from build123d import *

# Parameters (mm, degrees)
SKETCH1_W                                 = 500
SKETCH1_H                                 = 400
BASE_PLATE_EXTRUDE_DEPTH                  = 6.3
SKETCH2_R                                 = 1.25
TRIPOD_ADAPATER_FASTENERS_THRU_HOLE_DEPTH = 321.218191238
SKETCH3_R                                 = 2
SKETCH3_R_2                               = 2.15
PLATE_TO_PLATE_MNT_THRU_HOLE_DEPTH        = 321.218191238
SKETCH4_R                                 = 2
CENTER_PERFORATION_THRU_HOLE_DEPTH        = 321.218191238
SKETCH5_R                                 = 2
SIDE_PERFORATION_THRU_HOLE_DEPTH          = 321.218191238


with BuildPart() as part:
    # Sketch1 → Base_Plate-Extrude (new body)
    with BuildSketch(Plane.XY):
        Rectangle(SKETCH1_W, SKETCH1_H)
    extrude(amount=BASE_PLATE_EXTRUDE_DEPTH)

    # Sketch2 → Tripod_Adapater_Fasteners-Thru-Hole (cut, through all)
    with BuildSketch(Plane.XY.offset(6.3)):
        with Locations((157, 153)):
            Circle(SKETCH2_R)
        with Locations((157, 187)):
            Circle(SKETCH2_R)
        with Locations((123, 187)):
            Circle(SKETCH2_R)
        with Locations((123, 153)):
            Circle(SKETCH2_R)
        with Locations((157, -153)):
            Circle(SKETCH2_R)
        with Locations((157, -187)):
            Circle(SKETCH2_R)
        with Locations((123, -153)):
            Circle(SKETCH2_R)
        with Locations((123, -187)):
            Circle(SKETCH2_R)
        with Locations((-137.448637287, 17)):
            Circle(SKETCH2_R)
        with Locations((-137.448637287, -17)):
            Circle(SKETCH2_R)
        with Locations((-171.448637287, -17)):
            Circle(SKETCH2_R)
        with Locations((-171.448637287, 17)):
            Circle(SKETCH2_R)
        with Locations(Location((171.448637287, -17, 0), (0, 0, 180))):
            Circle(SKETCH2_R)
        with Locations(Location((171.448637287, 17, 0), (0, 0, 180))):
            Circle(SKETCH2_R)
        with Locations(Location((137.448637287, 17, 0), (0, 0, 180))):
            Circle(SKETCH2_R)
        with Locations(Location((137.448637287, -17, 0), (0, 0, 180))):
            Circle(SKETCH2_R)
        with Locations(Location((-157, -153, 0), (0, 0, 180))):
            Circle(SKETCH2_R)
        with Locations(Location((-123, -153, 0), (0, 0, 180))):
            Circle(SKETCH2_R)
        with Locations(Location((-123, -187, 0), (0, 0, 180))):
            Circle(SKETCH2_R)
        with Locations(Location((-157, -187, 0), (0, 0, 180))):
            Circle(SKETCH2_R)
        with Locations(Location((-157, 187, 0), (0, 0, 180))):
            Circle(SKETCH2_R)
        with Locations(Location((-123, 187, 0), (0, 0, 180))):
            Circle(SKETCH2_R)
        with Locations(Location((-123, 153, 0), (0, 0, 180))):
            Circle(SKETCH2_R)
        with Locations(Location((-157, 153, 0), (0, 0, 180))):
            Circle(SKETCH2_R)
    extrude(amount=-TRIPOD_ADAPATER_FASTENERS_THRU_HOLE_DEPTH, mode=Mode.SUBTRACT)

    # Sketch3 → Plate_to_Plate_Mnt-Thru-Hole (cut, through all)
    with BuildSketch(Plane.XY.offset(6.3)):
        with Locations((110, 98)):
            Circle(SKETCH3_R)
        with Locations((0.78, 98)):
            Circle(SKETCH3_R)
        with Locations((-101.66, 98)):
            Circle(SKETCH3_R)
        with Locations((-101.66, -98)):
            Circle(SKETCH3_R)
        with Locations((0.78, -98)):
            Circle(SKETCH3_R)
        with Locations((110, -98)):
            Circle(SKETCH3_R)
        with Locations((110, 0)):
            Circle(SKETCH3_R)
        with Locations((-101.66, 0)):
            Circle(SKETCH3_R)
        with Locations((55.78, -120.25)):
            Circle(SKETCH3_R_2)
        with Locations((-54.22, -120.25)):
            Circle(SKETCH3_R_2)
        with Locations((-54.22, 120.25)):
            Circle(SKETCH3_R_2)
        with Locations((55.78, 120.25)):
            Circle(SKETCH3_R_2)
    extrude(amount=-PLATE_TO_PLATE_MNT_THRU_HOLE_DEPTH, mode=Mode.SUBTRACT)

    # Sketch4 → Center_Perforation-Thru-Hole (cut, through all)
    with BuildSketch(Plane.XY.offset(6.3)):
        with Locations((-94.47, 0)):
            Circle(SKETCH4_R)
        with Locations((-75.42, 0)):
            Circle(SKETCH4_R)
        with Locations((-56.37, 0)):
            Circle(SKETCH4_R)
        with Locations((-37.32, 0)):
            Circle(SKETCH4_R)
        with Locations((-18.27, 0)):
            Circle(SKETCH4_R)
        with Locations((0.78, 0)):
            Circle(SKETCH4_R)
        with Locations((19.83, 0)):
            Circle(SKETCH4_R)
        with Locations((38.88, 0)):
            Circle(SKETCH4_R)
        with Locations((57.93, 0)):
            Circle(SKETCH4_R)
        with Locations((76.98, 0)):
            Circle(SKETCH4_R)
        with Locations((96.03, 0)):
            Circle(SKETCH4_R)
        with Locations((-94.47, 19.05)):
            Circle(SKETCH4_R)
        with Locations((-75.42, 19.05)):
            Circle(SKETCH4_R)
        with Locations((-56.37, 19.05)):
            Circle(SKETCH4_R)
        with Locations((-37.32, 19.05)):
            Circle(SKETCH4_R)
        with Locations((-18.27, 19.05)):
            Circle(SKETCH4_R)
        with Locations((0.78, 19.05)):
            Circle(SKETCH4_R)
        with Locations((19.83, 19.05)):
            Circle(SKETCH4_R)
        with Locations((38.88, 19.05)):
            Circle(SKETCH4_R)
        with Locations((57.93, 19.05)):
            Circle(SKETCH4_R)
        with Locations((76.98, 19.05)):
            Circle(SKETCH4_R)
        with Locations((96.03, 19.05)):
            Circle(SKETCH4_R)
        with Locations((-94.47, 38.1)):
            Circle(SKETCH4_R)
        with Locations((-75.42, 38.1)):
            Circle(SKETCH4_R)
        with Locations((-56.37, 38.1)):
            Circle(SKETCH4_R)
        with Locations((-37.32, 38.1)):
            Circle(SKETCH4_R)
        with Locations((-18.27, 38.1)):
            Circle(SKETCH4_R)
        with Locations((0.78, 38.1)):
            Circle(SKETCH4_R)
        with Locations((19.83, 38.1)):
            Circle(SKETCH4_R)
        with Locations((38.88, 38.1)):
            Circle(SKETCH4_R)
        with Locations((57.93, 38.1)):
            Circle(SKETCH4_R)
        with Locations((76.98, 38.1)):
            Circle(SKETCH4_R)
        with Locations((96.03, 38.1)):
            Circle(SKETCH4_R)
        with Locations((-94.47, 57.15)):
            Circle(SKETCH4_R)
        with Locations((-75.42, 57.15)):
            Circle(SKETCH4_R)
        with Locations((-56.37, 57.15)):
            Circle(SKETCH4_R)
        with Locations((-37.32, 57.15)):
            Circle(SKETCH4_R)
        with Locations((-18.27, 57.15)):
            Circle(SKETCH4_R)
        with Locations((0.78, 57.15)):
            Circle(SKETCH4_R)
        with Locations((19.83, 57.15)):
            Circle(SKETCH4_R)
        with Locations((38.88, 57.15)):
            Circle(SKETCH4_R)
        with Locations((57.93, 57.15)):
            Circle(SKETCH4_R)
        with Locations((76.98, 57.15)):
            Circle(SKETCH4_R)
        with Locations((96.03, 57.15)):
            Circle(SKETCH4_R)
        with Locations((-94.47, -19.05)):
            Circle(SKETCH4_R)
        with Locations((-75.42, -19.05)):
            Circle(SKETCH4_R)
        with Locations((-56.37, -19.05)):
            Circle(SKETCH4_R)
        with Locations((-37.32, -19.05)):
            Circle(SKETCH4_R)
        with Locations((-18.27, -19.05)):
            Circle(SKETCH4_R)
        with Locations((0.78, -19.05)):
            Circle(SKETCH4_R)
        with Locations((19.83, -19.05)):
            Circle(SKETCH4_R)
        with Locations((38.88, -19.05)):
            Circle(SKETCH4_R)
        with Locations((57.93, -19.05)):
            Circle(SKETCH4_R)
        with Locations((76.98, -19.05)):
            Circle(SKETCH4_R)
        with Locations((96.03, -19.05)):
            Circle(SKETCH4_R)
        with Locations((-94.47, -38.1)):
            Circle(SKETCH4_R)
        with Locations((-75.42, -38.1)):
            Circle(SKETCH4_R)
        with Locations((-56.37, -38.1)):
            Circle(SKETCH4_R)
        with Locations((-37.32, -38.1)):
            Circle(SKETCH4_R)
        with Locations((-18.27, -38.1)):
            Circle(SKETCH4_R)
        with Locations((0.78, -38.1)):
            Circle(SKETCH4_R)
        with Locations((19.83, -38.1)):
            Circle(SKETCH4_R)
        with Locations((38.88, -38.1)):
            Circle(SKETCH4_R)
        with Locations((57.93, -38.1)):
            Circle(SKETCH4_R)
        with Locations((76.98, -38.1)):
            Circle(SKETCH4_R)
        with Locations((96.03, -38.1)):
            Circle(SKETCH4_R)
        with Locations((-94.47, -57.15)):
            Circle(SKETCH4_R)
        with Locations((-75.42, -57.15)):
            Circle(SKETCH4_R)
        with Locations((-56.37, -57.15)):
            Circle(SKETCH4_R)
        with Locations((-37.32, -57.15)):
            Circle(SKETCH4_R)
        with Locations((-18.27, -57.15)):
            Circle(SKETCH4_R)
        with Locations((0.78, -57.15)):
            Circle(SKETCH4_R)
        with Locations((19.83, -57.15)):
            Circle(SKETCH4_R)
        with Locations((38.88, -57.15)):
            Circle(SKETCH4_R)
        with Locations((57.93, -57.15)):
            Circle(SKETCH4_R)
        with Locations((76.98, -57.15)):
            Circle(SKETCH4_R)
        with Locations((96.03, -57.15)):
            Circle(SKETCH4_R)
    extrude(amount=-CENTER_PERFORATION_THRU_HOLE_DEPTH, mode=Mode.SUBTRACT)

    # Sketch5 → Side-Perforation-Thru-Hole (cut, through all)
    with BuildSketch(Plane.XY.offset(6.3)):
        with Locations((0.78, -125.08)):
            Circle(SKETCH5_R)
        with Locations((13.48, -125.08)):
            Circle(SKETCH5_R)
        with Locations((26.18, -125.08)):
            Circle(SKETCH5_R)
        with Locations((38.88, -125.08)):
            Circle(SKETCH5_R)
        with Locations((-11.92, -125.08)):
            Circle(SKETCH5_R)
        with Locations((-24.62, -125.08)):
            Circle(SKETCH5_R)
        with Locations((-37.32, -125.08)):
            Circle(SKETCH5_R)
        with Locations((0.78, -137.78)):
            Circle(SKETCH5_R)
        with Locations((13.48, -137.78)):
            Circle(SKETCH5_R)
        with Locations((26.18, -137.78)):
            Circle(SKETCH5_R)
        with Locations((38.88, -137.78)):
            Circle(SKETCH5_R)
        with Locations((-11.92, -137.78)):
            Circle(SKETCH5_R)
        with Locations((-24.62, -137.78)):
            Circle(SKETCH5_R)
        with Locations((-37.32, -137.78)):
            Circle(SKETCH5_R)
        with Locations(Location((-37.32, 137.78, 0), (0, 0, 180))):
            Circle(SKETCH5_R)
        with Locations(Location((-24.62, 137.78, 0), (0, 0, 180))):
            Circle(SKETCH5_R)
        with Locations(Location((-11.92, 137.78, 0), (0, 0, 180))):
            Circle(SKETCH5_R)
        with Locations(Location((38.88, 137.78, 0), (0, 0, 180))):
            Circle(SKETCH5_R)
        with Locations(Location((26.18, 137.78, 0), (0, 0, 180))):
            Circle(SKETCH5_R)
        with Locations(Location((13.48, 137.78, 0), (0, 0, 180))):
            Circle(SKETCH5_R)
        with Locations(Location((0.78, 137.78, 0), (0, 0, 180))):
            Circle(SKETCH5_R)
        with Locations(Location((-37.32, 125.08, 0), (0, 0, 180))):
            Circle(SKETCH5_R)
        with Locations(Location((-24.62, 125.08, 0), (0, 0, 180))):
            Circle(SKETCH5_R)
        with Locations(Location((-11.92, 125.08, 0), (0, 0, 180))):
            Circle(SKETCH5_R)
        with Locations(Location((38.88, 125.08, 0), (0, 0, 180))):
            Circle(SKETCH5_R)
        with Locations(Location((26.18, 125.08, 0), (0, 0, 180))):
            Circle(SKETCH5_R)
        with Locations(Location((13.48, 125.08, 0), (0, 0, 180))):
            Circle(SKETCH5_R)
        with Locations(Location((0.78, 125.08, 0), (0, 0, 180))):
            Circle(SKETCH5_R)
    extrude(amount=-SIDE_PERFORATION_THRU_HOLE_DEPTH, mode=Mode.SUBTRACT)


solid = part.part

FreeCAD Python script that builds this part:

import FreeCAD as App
import Part
import Sketcher

V = App.Vector
Q = App.Units.Quantity


def add_polygon(sketch, points):
    """Adds a closed chain of lines whose ends are joined by coincident constraints."""
    first, n = sketch.GeometryCount, len(points)
    for a, b in zip(points, points[1:] + points[:1]):
        sketch.addGeometry(Part.LineSegment(App.Vector(*a, 0), App.Vector(*b, 0)), False)
    for i in range(n):
        sketch.addConstraint(Sketcher.Constraint("Coincident", first + i, 2, first + (i + 1) % n, 1))

doc = App.newDocument("Part")
params = doc.addObject("Spreadsheet::Sheet", "Params")
for row, (alias, value) in enumerate([
    ("sketch1_width", "500 mm"),
    ("sketch1_height", "400 mm"),
    ("pad1_length", "6.3 mm"),
    ("sketch2_diameter", "2.5 mm"),
    ("sketch3_diameter", "4 mm"),
    ("sketch3_diameter2", "4.3 mm"),
    ("sketch4_diameter", "4 mm"),
    ("sketch5_diameter", "4 mm"),
], start=1):
    params.set(f"A{row}", alias)
    params.set(f"B{row}", "=" + value)
    params.setAlias(f"B{row}", alias)

body = doc.addObject("PartDesign::Body", "Body")

# Sketch on XY plane
sketch1 = body.newObject("Sketcher::SketchObject", "Sketch")
sketch1.AttachmentSupport = (doc.getObject("XY_Plane"), [""])
sketch1.MapMode = "FlatFace"
add_polygon(sketch1, [(-250, 200), (-250, -200), (250, -200), (250, 200)])  # lines 0-3
sketch1.addConstraint([
    Sketcher.Constraint("Vertical", 0),
    Sketcher.Constraint("Horizontal", 1),
    Sketcher.Constraint("Vertical", 2),
    Sketcher.Constraint("Horizontal", 3),
    Sketcher.Constraint("Symmetric", 0, 2, 2, 2, -1, 1),
    Sketcher.Constraint("DistanceX", 1, 1, 1, 2, Q("500 mm")),
    Sketcher.Constraint("DistanceY", 0, 2, 0, 1, Q("400 mm")),
])
sketch1.setExpression("Constraints[9]", "Params.sketch1_width")
sketch1.setExpression("Constraints[10]", "Params.sketch1_height")
pad1 = body.newObject("PartDesign::Pad", "Pad")
pad1.Profile = sketch1
pad1.setExpression("Length", "Params.pad1_length")

# Sketch on XY plane
sketch2 = body.newObject("Sketcher::SketchObject", "Sketch001")
sketch2.AttachmentSupport = (doc.getObject("XY_Plane"), [""])
sketch2.MapMode = "FlatFace"
sketch2.AttachmentOffset = App.Placement(V(0, 0, 6.3), App.Rotation())
sketch2.addGeometry([
    Part.Circle(V(157, 153, 0), V(0, 0, 1), 1.25),  # 0
    Part.Circle(V(157, 187, 0), V(0, 0, 1), 1.25),  # 1
    Part.Circle(V(123, 187, 0), V(0, 0, 1), 1.25),  # 2
    Part.Circle(V(123, 153, 0), V(0, 0, 1), 1.25),  # 3
    Part.Circle(V(157, -153, 0), V(0, 0, 1), 1.25),  # 4
    Part.Circle(V(157, -187, 0), V(0, 0, 1), 1.25),  # 5
    Part.Circle(V(123, -153, 0), V(0, 0, 1), 1.25),  # 6
    Part.Circle(V(123, -187, 0), V(0, 0, 1), 1.25),  # 7
    Part.Circle(V(-137.448637, 17, 0), V(0, 0, 1), 1.25),  # 8
    Part.Circle(V(-137.448637, -17, 0), V(0, 0, 1), 1.25),  # 9
    Part.Circle(V(-171.448637, -17, 0), V(0, 0, 1), 1.25),  # 10
    Part.Circle(V(-171.448637, 17, 0), V(0, 0, 1), 1.25),  # 11
    Part.Circle(V(171.448637, -17, 0), V(0, 0, 1), 1.25),  # 12
    Part.Circle(V(171.448637, 17, 0), V(0, 0, 1), 1.25),  # 13
    Part.Circle(V(137.448637, 17, 0), V(0, 0, 1), 1.25),  # 14
    Part.Circle(V(137.448637, -17, 0), V(0, 0, 1), 1.25),  # 15
    Part.Circle(V(-157, -153, 0), V(0, 0, 1), 1.25),  # 16
    Part.Circle(V(-123, -153, 0), V(0, 0, 1), 1.25),  # 17
    Part.Circle(V(-123, -187, 0), V(0, 0, 1), 1.25),  # 18
    Part.Circle(V(-157, -187, 0), V(0, 0, 1), 1.25),  # 19
    Part.Circle(V(-157, 187, 0), V(0, 0, 1), 1.25),  # 20
    Part.Circle(V(-123, 187, 0), V(0, 0, 1), 1.25),  # 21
    Part.Circle(V(-123, 153, 0), V(0, 0, 1), 1.25),  # 22
    Part.Circle(V(-157, 153, 0), V(0, 0, 1), 1.25),  # 23
], False)
sketch2.addConstraint([
    Sketcher.Constraint("Equal", 0, 1),
    Sketcher.Constraint("Equal", 1, 2),
    Sketcher.Constraint("Equal", 2, 3),
    Sketcher.Constraint("Equal", 3, 4),
    Sketcher.Constraint("Equal", 4, 5),
    Sketcher.Constraint("Equal", 5, 6),
    Sketcher.Constraint("Equal", 6, 7),
    Sketcher.Constraint("Equal", 7, 8),
    Sketcher.Constraint("Equal", 8, 9),
    Sketcher.Constraint("Equal", 9, 10),
    Sketcher.Constraint("Equal", 10, 11),
    Sketcher.Constraint("Equal", 11, 12),
    Sketcher.Constraint("Equal", 12, 13),
    Sketcher.Constraint("Equal", 13, 14),
    Sketcher.Constraint("Equal", 14, 15),
    Sketcher.Constraint("Equal", 15, 16),
    Sketcher.Constraint("Equal", 16, 17),
    Sketcher.Constraint("Equal", 17, 18),
    Sketcher.Constraint("Equal", 18, 19),
    Sketcher.Constraint("Equal", 19, 20),
    Sketcher.Constraint("Equal", 20, 21),
    Sketcher.Constraint("Equal", 21, 22),
    Sketcher.Constraint("Equal", 22, 23),
    Sketcher.Constraint("Symmetric", 11, 3, 12, 3, -1, 1),
    Sketcher.Constraint("Symmetric", 10, 3, 13, 3, -1, 1),
    Sketcher.Constraint("Symmetric", 9, 3, 14, 3, -1, 1),
    Sketcher.Constraint("Symmetric", 8, 3, 15, 3, -1, 1),
    Sketcher.Constraint("Symmetric", 0, 3, 16, 3, -1, 1),
    Sketcher.Constraint("Symmetric", 3, 3, 17, 3, -1, 1),
    Sketcher.Constraint("Symmetric", 2, 3, 18, 3, -1, 1),
    Sketcher.Constraint("Symmetric", 1, 3, 19, 3, -1, 1),
    Sketcher.Constraint("Symmetric", 5, 3, 20, 3, -1, 1),
    Sketcher.Constraint("Symmetric", 7, 3, 21, 3, -1, 1),
    Sketcher.Constraint("Symmetric", 6, 3, 22, 3, -1, 1),
    Sketcher.Constraint("Symmetric", 4, 3, 23, 3, -1, 1),
    Sketcher.Constraint("Symmetric", 10, 3, 12, 3, -2),
    Sketcher.Constraint("Symmetric", 8, 3, 14, 3, -2),
    Sketcher.Constraint("Symmetric", 4, 3, 16, 3, -2),
    Sketcher.Constraint("Symmetric", 6, 3, 17, 3, -2),
    Sketcher.Constraint("Symmetric", 7, 3, 18, 3, -2),
    Sketcher.Constraint("Symmetric", 5, 3, 19, 3, -2),
    Sketcher.Constraint("Horizontal", 1, 3, 2, 3),
    Sketcher.Constraint("Horizontal", 0, 3, 3, 3),
    Sketcher.Constraint("Horizontal", 9, 3, 10, 3),
    Sketcher.Constraint("Vertical", 0, 3, 1, 3),
    Sketcher.Constraint("Vertical", 2, 3, 3, 3),
    Sketcher.Constraint("Diameter", 0, Q("2.5 mm")),
    Sketcher.Constraint("DistanceX", -1, 1, 0, 3, Q("157 mm")),
    Sketcher.Constraint("DistanceY", -1, 1, 0, 3, Q("153 mm")),
    Sketcher.Constraint("DistanceY", -1, 1, 1, 3, Q("187 mm")),
    Sketcher.Constraint("DistanceX", -1, 1, 2, 3, Q("123 mm")),
    Sketcher.Constraint("DistanceY", -1, 1, 8, 3, Q("17 mm")),
    Sketcher.Constraint("DistanceX", 10, 3, 9, 3, Q("34 mm")),
    Sketcher.Constraint("DistanceX", 8, 3, -1, 1, Q("137.448637 mm")),
])
sketch2.setExpression("Constraints[46]", "Params.sketch2_diameter")
pocket1 = body.newObject("PartDesign::Pocket", "Pocket")
pocket1.Profile = sketch2
pocket1.Type = "ThroughAll"

# Sketch on XY plane
sketch3 = body.newObject("Sketcher::SketchObject", "Sketch002")
sketch3.AttachmentSupport = (doc.getObject("XY_Plane"), [""])
sketch3.MapMode = "FlatFace"
sketch3.AttachmentOffset = App.Placement(V(0, 0, 6.3), App.Rotation())
sketch3.addGeometry([
    Part.Circle(V(110, 98, 0), V(0, 0, 1), 2),  # 0
    Part.Circle(V(0.78, 98, 0), V(0, 0, 1), 2),  # 1
    Part.Circle(V(-101.66, 98, 0), V(0, 0, 1), 2),  # 2
    Part.Circle(V(-101.66, -98, 0), V(0, 0, 1), 2),  # 3
    Part.Circle(V(0.78, -98, 0), V(0, 0, 1), 2),  # 4
    Part.Circle(V(110, -98, 0), V(0, 0, 1), 2),  # 5
    Part.Circle(V(110, 0, 0), V(0, 0, 1), 2),  # 6
    Part.Circle(V(-101.66, 0, 0), V(0, 0, 1), 2),  # 7
    Part.Circle(V(55.78, -120.25, 0), V(0, 0, 1), 2.15),  # 8
    Part.Circle(V(-54.22, -120.25, 0), V(0, 0, 1), 2.15),  # 9
    Part.Circle(V(-54.22, 120.25, 0), V(0, 0, 1), 2.15),  # 10
    Part.Circle(V(55.78, 120.25, 0), V(0, 0, 1), 2.15),  # 11
], False)
sketch3.addConstraint([
    Sketcher.Constraint("Equal", 0, 1),
    Sketcher.Constraint("Equal", 1, 2),
    Sketcher.Constraint("Equal", 2, 3),
    Sketcher.Constraint("Equal", 3, 4),
    Sketcher.Constraint("Equal", 4, 5),
    Sketcher.Constraint("Equal", 5, 6),
    Sketcher.Constraint("Equal", 6, 7),
    Sketcher.Constraint("Equal", 8, 9),
    Sketcher.Constraint("Equal", 9, 10),
    Sketcher.Constraint("Equal", 10, 11),
    Sketcher.Constraint("Symmetric", 2, 3, 3, 3, -1),
    Sketcher.Constraint("Symmetric", 1, 3, 4, 3, -1),
    Sketcher.Constraint("Symmetric", 0, 3, 5, 3, -1),
    Sketcher.Constraint("Symmetric", 9, 3, 10, 3, -1),
    Sketcher.Constraint("Symmetric", 8, 3, 11, 3, -1),
    Sketcher.Constraint("PointOnObject", 6, 3, -1),
    Sketcher.Constraint("PointOnObject", 7, 3, -1),
    Sketcher.Constraint("Horizontal", 0, 3, 1, 3),
    Sketcher.Constraint("Horizontal", 1, 3, 2, 3),
    Sketcher.Constraint("Horizontal", 8, 3, 9, 3),
    Sketcher.Constraint("Vertical", 5, 3, 6, 3),
    Sketcher.Constraint("Vertical", 3, 3, 7, 3),
    Sketcher.Constraint("Diameter", 0, Q("4 mm")),
    Sketcher.Constraint("Diameter", 8, Q("4.3 mm")),
    Sketcher.Constraint("DistanceX", -1, 1, 0, 3, Q("110 mm")),
    Sketcher.Constraint("DistanceY", -1, 1, 0, 3, Q("98 mm")),
    Sketcher.Constraint("DistanceX", 4, 3, 8, 3, Q("55 mm")),
    Sketcher.Constraint("DistanceX", 9, 3, 4, 3, Q("55 mm")),
    Sketcher.Constraint("DistanceX", -1, 1, 1, 3, Q("0.78 mm")),
    Sketcher.Constraint("DistanceX", 2, 3, -1, 1, Q("101.66 mm")),
    Sketcher.Constraint("DistanceY", 8, 3, -1, 1, Q("120.25 mm")),
])
sketch3.setExpression("Constraints[22]", "Params.sketch3_diameter")
sketch3.setExpression("Constraints[23]", "Params.sketch3_diameter2")
pocket2 = body.newObject("PartDesign::Pocket", "Pocket001")
pocket2.Profile = sketch3
pocket2.Type = "ThroughAll"

# Sketch on XY plane
sketch4 = body.newObject("Sketcher::SketchObject", "Sketch003")
sketch4.AttachmentSupport = (doc.getObject("XY_Plane"), [""])
sketch4.MapMode = "FlatFace"
sketch4.AttachmentOffset = App.Placement(V(0, 0, 6.3), App.Rotation())
sketch4.addGeometry([
    Part.Circle(V(-94.47, 0, 0), V(0, 0, 1), 2),  # 0
    Part.Circle(V(-75.42, 0, 0), V(0, 0, 1), 2),  # 1
    Part.Circle(V(-56.37, 0, 0), V(0, 0, 1), 2),  # 2
    Part.Circle(V(-37.32, 0, 0), V(0, 0, 1), 2),  # 3
    Part.Circle(V(-18.27, 0, 0), V(0, 0, 1), 2),  # 4
    Part.Circle(V(0.78, 0, 0), V(0, 0, 1), 2),  # 5
    Part.Circle(V(19.83, 0, 0), V(0, 0, 1), 2),  # 6
    Part.Circle(V(38.88, 0, 0), V(0, 0, 1), 2),  # 7
    Part.Circle(V(57.93, 0, 0), V(0, 0, 1), 2),  # 8
    Part.Circle(V(76.98, 0, 0), V(0, 0, 1), 2),  # 9
    Part.Circle(V(96.03, 0, 0), V(0, 0, 1), 2),  # 10
    Part.Circle(V(-94.47, 19.05, 0), V(0, 0, 1), 2),  # 11
    Part.Circle(V(-75.42, 19.05, 0), V(0, 0, 1), 2),  # 12
    Part.Circle(V(-56.37, 19.05, 0), V(0, 0, 1), 2),  # 13
    Part.Circle(V(-37.32, 19.05, 0), V(0, 0, 1), 2),  # 14
    Part.Circle(V(-18.27, 19.05, 0), V(0, 0, 1), 2),  # 15
    Part.Circle(V(0.78, 19.05, 0), V(0, 0, 1), 2),  # 16
    Part.Circle(V(19.83, 19.05, 0), V(0, 0, 1), 2),  # 17
    Part.Circle(V(38.88, 19.05, 0), V(0, 0, 1), 2),  # 18
    Part.Circle(V(57.93, 19.05, 0), V(0, 0, 1), 2),  # 19
    Part.Circle(V(76.98, 19.05, 0), V(0, 0, 1), 2),  # 20
    Part.Circle(V(96.03, 19.05, 0), V(0, 0, 1), 2),  # 21
    Part.Circle(V(-94.47, 38.1, 0), V(0, 0, 1), 2),  # 22
    Part.Circle(V(-75.42, 38.1, 0), V(0, 0, 1), 2),  # 23
    Part.Circle(V(-56.37, 38.1, 0), V(0, 0, 1), 2),  # 24
    Part.Circle(V(-37.32, 38.1, 0), V(0, 0, 1), 2),  # 25
    Part.Circle(V(-18.27, 38.1, 0), V(0, 0, 1), 2),  # 26
    Part.Circle(V(0.78, 38.1, 0), V(0, 0, 1), 2),  # 27
    Part.Circle(V(19.83, 38.1, 0), V(0, 0, 1), 2),  # 28
    Part.Circle(V(38.88, 38.1, 0), V(0, 0, 1), 2),  # 29
    Part.Circle(V(57.93, 38.1, 0), V(0, 0, 1), 2),  # 30
    Part.Circle(V(76.98, 38.1, 0), V(0, 0, 1), 2),  # 31
    Part.Circle(V(96.03, 38.1, 0), V(0, 0, 1), 2),  # 32
    Part.Circle(V(-94.47, 57.15, 0), V(0, 0, 1), 2),  # 33
    Part.Circle(V(-75.42, 57.15, 0), V(0, 0, 1), 2),  # 34
    Part.Circle(V(-56.37, 57.15, 0), V(0, 0, 1), 2),  # 35
    Part.Circle(V(-37.32, 57.15, 0), V(0, 0, 1), 2),  # 36
    Part.Circle(V(-18.27, 57.15, 0), V(0, 0, 1), 2),  # 37
    Part.Circle(V(0.78, 57.15, 0), V(0, 0, 1), 2),  # 38
    Part.Circle(V(19.83, 57.15, 0), V(0, 0, 1), 2),  # 39
    Part.Circle(V(38.88, 57.15, 0), V(0, 0, 1), 2),  # 40
    Part.Circle(V(57.93, 57.15, 0), V(0, 0, 1), 2),  # 41
    Part.Circle(V(76.98, 57.15, 0), V(0, 0, 1), 2),  # 42
    Part.Circle(V(96.03, 57.15, 0), V(0, 0, 1), 2),  # 43
    Part.Circle(V(-94.47, -19.05, 0), V(0, 0, 1), 2),  # 44
    Part.Circle(V(-75.42, -19.05, 0), V(0, 0, 1), 2),  # 45
    Part.Circle(V(-56.37, -19.05, 0), V(0, 0, 1), 2),  # 46
    Part.Circle(V(-37.32, -19.05, 0), V(0, 0, 1), 2),  # 47
    Part.Circle(V(-18.27, -19.05, 0), V(0, 0, 1), 2),  # 48
    Part.Circle(V(0.78, -19.05, 0), V(0, 0, 1), 2),  # 49
    Part.Circle(V(19.83, -19.05, 0), V(0, 0, 1), 2),  # 50
    Part.Circle(V(38.88, -19.05, 0), V(0, 0, 1), 2),  # 51
    Part.Circle(V(57.93, -19.05, 0), V(0, 0, 1), 2),  # 52
    Part.Circle(V(76.98, -19.05, 0), V(0, 0, 1), 2),  # 53
    Part.Circle(V(96.03, -19.05, 0), V(0, 0, 1), 2),  # 54
    Part.Circle(V(-94.47, -38.1, 0), V(0, 0, 1), 2),  # 55
    Part.Circle(V(-75.42, -38.1, 0), V(0, 0, 1), 2),  # 56
    Part.Circle(V(-56.37, -38.1, 0), V(0, 0, 1), 2),  # 57
    Part.Circle(V(-37.32, -38.1, 0), V(0, 0, 1), 2),  # 58
    Part.Circle(V(-18.27, -38.1, 0), V(0, 0, 1), 2),  # 59
    Part.Circle(V(0.78, -38.1, 0), V(0, 0, 1), 2),  # 60
    Part.Circle(V(19.83, -38.1, 0), V(0, 0, 1), 2),  # 61
    Part.Circle(V(38.88, -38.1, 0), V(0, 0, 1), 2),  # 62
    Part.Circle(V(57.93, -38.1, 0), V(0, 0, 1), 2),  # 63
    Part.Circle(V(76.98, -38.1, 0), V(0, 0, 1), 2),  # 64
    Part.Circle(V(96.03, -38.1, 0), V(0, 0, 1), 2),  # 65
    Part.Circle(V(-94.47, -57.15, 0), V(0, 0, 1), 2),  # 66
    Part.Circle(V(-75.42, -57.15, 0), V(0, 0, 1), 2),  # 67
    Part.Circle(V(-56.37, -57.15, 0), V(0, 0, 1), 2),  # 68
    Part.Circle(V(-37.32, -57.15, 0), V(0, 0, 1), 2),  # 69
    Part.Circle(V(-18.27, -57.15, 0), V(0, 0, 1), 2),  # 70
    Part.Circle(V(0.78, -57.15, 0), V(0, 0, 1), 2),  # 71
    Part.Circle(V(19.83, -57.15, 0), V(0, 0, 1), 2),  # 72
    Part.Circle(V(38.88, -57.15, 0), V(0, 0, 1), 2),  # 73
    Part.Circle(V(57.93, -57.15, 0), V(0, 0, 1), 2),  # 74
    Part.Circle(V(76.98, -57.15, 0), V(0, 0, 1), 2),  # 75
    Part.Circle(V(96.03, -57.15, 0), V(0, 0, 1), 2),  # 76
], False)
sketch4.addConstraint([
    Sketcher.Constraint("Equal", 0, 1),
    Sketcher.Constraint("Equal", 1, 2),
    Sketcher.Constraint("Equal", 2, 3),
    Sketcher.Constraint("Equal", 3, 4),
    Sketcher.Constraint("Equal", 4, 5),
    Sketcher.Constraint("Equal", 5, 6),
    Sketcher.Constraint("Equal", 6, 7),
    Sketcher.Constraint("Equal", 7, 8),
    Sketcher.Constraint("Equal", 8, 9),
    Sketcher.Constraint("Equal", 9, 10),
    Sketcher.Constraint("Equal", 10, 11),
    Sketcher.Constraint("Equal", 11, 12),
    Sketcher.Constraint("Equal", 12, 13),
    Sketcher.Constraint("Equal", 13, 14),
    Sketcher.Constraint("Equal", 14, 15),
    Sketcher.Constraint("Equal", 15, 16),
    Sketcher.Constraint("Equal", 16, 17),
    Sketcher.Constraint("Equal", 17, 18),
    Sketcher.Constraint("Equal", 18, 19),
    Sketcher.Constraint("Equal", 19, 20),
    Sketcher.Constraint("Equal", 20, 21),
    Sketcher.Constraint("Equal", 21, 22),
    Sketcher.Constraint("Equal", 22, 23),
    Sketcher.Constraint("Equal", 23, 24),
    Sketcher.Constraint("Equal", 24, 25),
    Sketcher.Constraint("Equal", 25, 26),
    Sketcher.Constraint("Equal", 26, 27),
    Sketcher.Constraint("Equal", 27, 28),
    Sketcher.Constraint("Equal", 28, 29),
    Sketcher.Constraint("Equal", 29, 30),
    Sketcher.Constraint("Equal", 30, 31),
    Sketcher.Constraint("Equal", 31, 32),
    Sketcher.Constraint("Equal", 32, 33),
    Sketcher.Constraint("Equal", 33, 34),
    Sketcher.Constraint("Equal", 34, 35),
    Sketcher.Constraint("Equal", 35, 36),
    Sketcher.Constraint("Equal", 36, 37),
    Sketcher.Constraint("Equal", 37, 38),
    Sketcher.Constraint("Equal", 38, 39),
    Sketcher.Constraint("Equal", 39, 40),
    Sketcher.Constraint("Equal", 40, 41),
    Sketcher.Constraint("Equal", 41, 42),
    Sketcher.Constraint("Equal", 42, 43),
    Sketcher.Constraint("Equal", 43, 44),
    Sketcher.Constraint("Equal", 44, 45),
    Sketcher.Constraint("Equal", 45, 46),
    Sketcher.Constraint("Equal", 46, 47),
    Sketcher.Constraint("Equal", 47, 48),
    Sketcher.Constraint("Equal", 48, 49),
    Sketcher.Constraint("Equal", 49, 50),
    Sketcher.Constraint("Equal", 50, 51),
    Sketcher.Constraint("Equal", 51, 52),
    Sketcher.Constraint("Equal", 52, 53),
    Sketcher.Constraint("Equal", 53, 54),
    Sketcher.Constraint("Equal", 54, 55),
    Sketcher.Constraint("Equal", 55, 56),
    Sketcher.Constraint("Equal", 56, 57),
    Sketcher.Constraint("Equal", 57, 58),
    Sketcher.Constraint("Equal", 58, 59),
    Sketcher.Constraint("Equal", 59, 60),
    Sketcher.Constraint("Equal", 60, 61),
    Sketcher.Constraint("Equal", 61, 62),
    Sketcher.Constraint("Equal", 62, 63),
    Sketcher.Constraint("Equal", 63, 64),
    Sketcher.Constraint("Equal", 64, 65),
    Sketcher.Constraint("Equal", 65, 66),
    Sketcher.Constraint("Equal", 66, 67),
    Sketcher.Constraint("Equal", 67, 68),
    Sketcher.Constraint("Equal", 68, 69),
    Sketcher.Constraint("Equal", 69, 70),
    Sketcher.Constraint("Equal", 70, 71),
    Sketcher.Constraint("Equal", 71, 72),
    Sketcher.Constraint("Equal", 72, 73),
    Sketcher.Constraint("Equal", 73, 74),
    Sketcher.Constraint("Equal", 74, 75),
    Sketcher.Constraint("Equal", 75, 76),
    Sketcher.Constraint("Symmetric", 11, 3, 44, 3, -1),
    Sketcher.Constraint("Symmetric", 12, 3, 45, 3, -1),
    Sketcher.Constraint("Symmetric", 13, 3, 46, 3, -1),
    Sketcher.Constraint("Symmetric", 14, 3, 47, 3, -1),
    Sketcher.Constraint("Symmetric", 15, 3, 48, 3, -1),
    Sketcher.Constraint("Symmetric", 16, 3, 49, 3, -1),
    Sketcher.Constraint("Symmetric", 17, 3, 50, 3, -1),
    Sketcher.Constraint("Symmetric", 18, 3, 51, 3, -1),
    Sketcher.Constraint("Symmetric", 19, 3, 52, 3, -1),
    Sketcher.Constraint("Symmetric", 20, 3, 53, 3, -1),
    Sketcher.Constraint("Symmetric", 21, 3, 54, 3, -1),
    Sketcher.Constraint("Symmetric", 22, 3, 55, 3, -1),
    Sketcher.Constraint("Symmetric", 23, 3, 56, 3, -1),
    Sketcher.Constraint("Symmetric", 24, 3, 57, 3, -1),
    Sketcher.Constraint("Symmetric", 25, 3, 58, 3, -1),
    Sketcher.Constraint("Symmetric", 26, 3, 59, 3, -1),
    Sketcher.Constraint("Symmetric", 27, 3, 60, 3, -1),
    Sketcher.Constraint("Symmetric", 28, 3, 61, 3, -1),
    Sketcher.Constraint("Symmetric", 29, 3, 62, 3, -1),
    Sketcher.Constraint("Symmetric", 30, 3, 63, 3, -1),
    Sketcher.Constraint("Symmetric", 31, 3, 64, 3, -1),
    Sketcher.Constraint("Symmetric", 32, 3, 65, 3, -1),
    Sketcher.Constraint("Symmetric", 33, 3, 66, 3, -1),
    Sketcher.Constraint("Symmetric", 34, 3, 67, 3, -1),
    Sketcher.Constraint("Symmetric", 35, 3, 68, 3, -1),
    Sketcher.Constraint("Symmetric", 36, 3, 69, 3, -1),
    Sketcher.Constraint("Symmetric", 37, 3, 70, 3, -1),
    Sketcher.Constraint("Symmetric", 38, 3, 71, 3, -1),
    Sketcher.Constraint("Symmetric", 39, 3, 72, 3, -1),
    Sketcher.Constraint("Symmetric", 40, 3, 73, 3, -1),
    Sketcher.Constraint("Symmetric", 41, 3, 74, 3, -1),
    Sketcher.Constraint("Symmetric", 42, 3, 75, 3, -1),
    Sketcher.Constraint("Symmetric", 43, 3, 76, 3, -1),
    Sketcher.Constraint("PointOnObject", 0, 3, -1),
    Sketcher.Constraint("PointOnObject", 1, 3, -1),
    Sketcher.Constraint("PointOnObject", 2, 3, -1),
    Sketcher.Constraint("PointOnObject", 3, 3, -1),
    Sketcher.Constraint("PointOnObject", 4, 3, -1),
    Sketcher.Constraint("PointOnObject", 5, 3, -1),
    Sketcher.Constraint("PointOnObject", 6, 3, -1),
    Sketcher.Constraint("PointOnObject", 7, 3, -1),
    Sketcher.Constraint("PointOnObject", 8, 3, -1),
    Sketcher.Constraint("PointOnObject", 9, 3, -1),
    Sketcher.Constraint("PointOnObject", 10, 3, -1),
    Sketcher.Constraint("Horizontal", 11, 3, 12, 3),
    Sketcher.Constraint("Horizontal", 12, 3, 13, 3),
    Sketcher.Constraint("Horizontal", 13, 3, 14, 3),
    Sketcher.Constraint("Horizontal", 14, 3, 15, 3),
    Sketcher.Constraint("Horizontal", 15, 3, 16, 3),
    Sketcher.Constraint("Horizontal", 16, 3, 17, 3),
    Sketcher.Constraint("Horizontal", 17, 3, 18, 3),
    Sketcher.Constraint("Horizontal", 18, 3, 19, 3),
    Sketcher.Constraint("Horizontal", 19, 3, 20, 3),
    Sketcher.Constraint("Horizontal", 20, 3, 21, 3),
    Sketcher.Constraint("Horizontal", 22, 3, 23, 3),
    Sketcher.Constraint("Horizontal", 23, 3, 24, 3),
    Sketcher.Constraint("Horizontal", 24, 3, 25, 3),
    Sketcher.Constraint("Horizontal", 25, 3, 26, 3),
    Sketcher.Constraint("Horizontal", 26, 3, 27, 3),
    Sketcher.Constraint("Horizontal", 27, 3, 28, 3),
    Sketcher.Constraint("Horizontal", 28, 3, 29, 3),
    Sketcher.Constraint("Horizontal", 29, 3, 30, 3),
    Sketcher.Constraint("Horizontal", 30, 3, 31, 3),
    Sketcher.Constraint("Horizontal", 31, 3, 32, 3),
    Sketcher.Constraint("Horizontal", 33, 3, 34, 3),
    Sketcher.Constraint("Horizontal", 34, 3, 35, 3),
    Sketcher.Constraint("Horizontal", 35, 3, 36, 3),
    Sketcher.Constraint("Horizontal", 36, 3, 37, 3),
    Sketcher.Constraint("Horizontal", 37, 3, 38, 3),
    Sketcher.Constraint("Horizontal", 38, 3, 39, 3),
    Sketcher.Constraint("Horizontal", 39, 3, 40, 3),
    Sketcher.Constraint("Horizontal", 40, 3, 41, 3),
    Sketcher.Constraint("Horizontal", 41, 3, 42, 3),
    Sketcher.Constraint("Horizontal", 42, 3, 43, 3),
    Sketcher.Constraint("Vertical", 0, 3, 11, 3),
    Sketcher.Constraint("Vertical", 1, 3, 12, 3),
    Sketcher.Constraint("Vertical", 2, 3, 13, 3),
    Sketcher.Constraint("Vertical", 3, 3, 14, 3),
    Sketcher.Constraint("Vertical", 4, 3, 15, 3),
    Sketcher.Constraint("Vertical", 5, 3, 16, 3),
    Sketcher.Constraint("Vertical", 6, 3, 17, 3),
    Sketcher.Constraint("Vertical", 7, 3, 18, 3),
    Sketcher.Constraint("Vertical", 8, 3, 19, 3),
    Sketcher.Constraint("Vertical", 9, 3, 20, 3),
    Sketcher.Constraint("Vertical", 10, 3, 21, 3),
    Sketcher.Constraint("Vertical", 11, 3, 22, 3),
    Sketcher.Constraint("Vertical", 12, 3, 23, 3),
    Sketcher.Constraint("Vertical", 13, 3, 24, 3),
    Sketcher.Constraint("Vertical", 14, 3, 25, 3),
    Sketcher.Constraint("Vertical", 15, 3, 26, 3),
    Sketcher.Constraint("Vertical", 16, 3, 27, 3),
    Sketcher.Constraint("Vertical", 17, 3, 28, 3),
    Sketcher.Constraint("Vertical", 18, 3, 29, 3),
    Sketcher.Constraint("Vertical", 19, 3, 30, 3),
    Sketcher.Constraint("Vertical", 20, 3, 31, 3),
    Sketcher.Constraint("Vertical", 21, 3, 32, 3),
    Sketcher.Constraint("Vertical", 22, 3, 33, 3),
    Sketcher.Constraint("Vertical", 23, 3, 34, 3),
    Sketcher.Constraint("Vertical", 24, 3, 35, 3),
    Sketcher.Constraint("Vertical", 25, 3, 36, 3),
    Sketcher.Constraint("Vertical", 26, 3, 37, 3),
    Sketcher.Constraint("Vertical", 27, 3, 38, 3),
    Sketcher.Constraint("Vertical", 28, 3, 39, 3),
    Sketcher.Constraint("Vertical", 29, 3, 40, 3),
    Sketcher.Constraint("Vertical", 30, 3, 41, 3),
    Sketcher.Constraint("Vertical", 31, 3, 42, 3),
    Sketcher.Constraint("Vertical", 32, 3, 43, 3),
    Sketcher.Constraint("Diameter", 0, Q("4 mm")),
    Sketcher.Constraint("DistanceY", -1, 1, 22, 3, Q("38.1 mm")),
    Sketcher.Constraint("DistanceX", 0, 3, -1, 1, Q("94.47 mm")),
    Sketcher.Constraint("DistanceX", 1, 3, -1, 1, Q("75.42 mm")),
    Sketcher.Constraint("DistanceX", 2, 3, -1, 1, Q("56.37 mm")),
    Sketcher.Constraint("DistanceX", 3, 3, -1, 1, Q("37.32 mm")),
    Sketcher.Constraint("DistanceX", 4, 3, -1, 1, Q("18.27 mm")),
    Sketcher.Constraint("DistanceX", -1, 1, 5, 3, Q("0.78 mm")),
    Sketcher.Constraint("DistanceX", -1, 1, 6, 3, Q("19.83 mm")),
    Sketcher.Constraint("DistanceX", -1, 1, 7, 3, Q("38.88 mm")),
    Sketcher.Constraint("DistanceX", -1, 1, 8, 3, Q("57.93 mm")),
    Sketcher.Constraint("DistanceX", -1, 1, 9, 3, Q("76.98 mm")),
    Sketcher.Constraint("DistanceX", -1, 1, 10, 3, Q("96.03 mm")),
    Sketcher.Constraint("DistanceY", -1, 1, 11, 3, Q("19.05 mm")),
    Sketcher.Constraint("DistanceY", -1, 1, 33, 3, Q("57.15 mm")),
])
sketch4.setExpression("Constraints[183]", "Params.sketch4_diameter")
pocket3 = body.newObject("PartDesign::Pocket", "Pocket002")
pocket3.Profile = sketch4
pocket3.Type = "ThroughAll"

# Sketch on XY plane
sketch5 = body.newObject("Sketcher::SketchObject", "Sketch004")
sketch5.AttachmentSupport = (doc.getObject("XY_Plane"), [""])
sketch5.MapMode = "FlatFace"
sketch5.AttachmentOffset = App.Placement(V(0, 0, 6.3), App.Rotation())
sketch5.addGeometry([
    Part.Circle(V(0.78, -125.08, 0), V(0, 0, 1), 2),  # 0
    Part.Circle(V(13.48, -125.08, 0), V(0, 0, 1), 2),  # 1
    Part.Circle(V(26.18, -125.08, 0), V(0, 0, 1), 2),  # 2
    Part.Circle(V(38.88, -125.08, 0), V(0, 0, 1), 2),  # 3
    Part.Circle(V(-11.92, -125.08, 0), V(0, 0, 1), 2),  # 4
    Part.Circle(V(-24.62, -125.08, 0), V(0, 0, 1), 2),  # 5
    Part.Circle(V(-37.32, -125.08, 0), V(0, 0, 1), 2),  # 6
    Part.Circle(V(0.78, -137.78, 0), V(0, 0, 1), 2),  # 7
    Part.Circle(V(13.48, -137.78, 0), V(0, 0, 1), 2),  # 8
    Part.Circle(V(26.18, -137.78, 0), V(0, 0, 1), 2),  # 9
    Part.Circle(V(38.88, -137.78, 0), V(0, 0, 1), 2),  # 10
    Part.Circle(V(-11.92, -137.78, 0), V(0, 0, 1), 2),  # 11
    Part.Circle(V(-24.62, -137.78, 0), V(0, 0, 1), 2),  # 12
    Part.Circle(V(-37.32, -137.78, 0), V(0, 0, 1), 2),  # 13
    Part.Circle(V(-37.32, 137.78, 0), V(0, 0, 1), 2),  # 14
    Part.Circle(V(-24.62, 137.78, 0), V(0, 0, 1), 2),  # 15
    Part.Circle(V(-11.92, 137.78, 0), V(0, 0, 1), 2),  # 16
    Part.Circle(V(38.88, 137.78, 0), V(0, 0, 1), 2),  # 17
    Part.Circle(V(26.18, 137.78, 0), V(0, 0, 1), 2),  # 18
    Part.Circle(V(13.48, 137.78, 0), V(0, 0, 1), 2),  # 19
    Part.Circle(V(0.78, 137.78, 0), V(0, 0, 1), 2),  # 20
    Part.Circle(V(-37.32, 125.08, 0), V(0, 0, 1), 2),  # 21
    Part.Circle(V(-24.62, 125.08, 0), V(0, 0, 1), 2),  # 22
    Part.Circle(V(-11.92, 125.08, 0), V(0, 0, 1), 2),  # 23
    Part.Circle(V(38.88, 125.08, 0), V(0, 0, 1), 2),  # 24
    Part.Circle(V(26.18, 125.08, 0), V(0, 0, 1), 2),  # 25
    Part.Circle(V(13.48, 125.08, 0), V(0, 0, 1), 2),  # 26
    Part.Circle(V(0.78, 125.08, 0), V(0, 0, 1), 2),  # 27
], False)
sketch5.addConstraint([
    Sketcher.Constraint("Equal", 0, 1),
    Sketcher.Constraint("Equal", 1, 2),
    Sketcher.Constraint("Equal", 2, 3),
    Sketcher.Constraint("Equal", 3, 4),
    Sketcher.Constraint("Equal", 4, 5),
    Sketcher.Constraint("Equal", 5, 6),
    Sketcher.Constraint("Equal", 6, 7),
    Sketcher.Constraint("Equal", 7, 8),
    Sketcher.Constraint("Equal", 8, 9),
    Sketcher.Constraint("Equal", 9, 10),
    Sketcher.Constraint("Equal", 10, 11),
    Sketcher.Constraint("Equal", 11, 12),
    Sketcher.Constraint("Equal", 12, 13),
    Sketcher.Constraint("Equal", 13, 14),
    Sketcher.Constraint("Equal", 14, 15),
    Sketcher.Constraint("Equal", 15, 16),
    Sketcher.Constraint("Equal", 16, 17),
    Sketcher.Constraint("Equal", 17, 18),
    Sketcher.Constraint("Equal", 18, 19),
    Sketcher.Constraint("Equal", 19, 20),
    Sketcher.Constraint("Equal", 20, 21),
    Sketcher.Constraint("Equal", 21, 22),
    Sketcher.Constraint("Equal", 22, 23),
    Sketcher.Constraint("Equal", 23, 24),
    Sketcher.Constraint("Equal", 24, 25),
    Sketcher.Constraint("Equal", 25, 26),
    Sketcher.Constraint("Equal", 26, 27),
    Sketcher.Constraint("Symmetric", 13, 3, 14, 3, -1),
    Sketcher.Constraint("Symmetric", 12, 3, 15, 3, -1),
    Sketcher.Constraint("Symmetric", 11, 3, 16, 3, -1),
    Sketcher.Constraint("Symmetric", 10, 3, 17, 3, -1),
    Sketcher.Constraint("Symmetric", 9, 3, 18, 3, -1),
    Sketcher.Constraint("Symmetric", 8, 3, 19, 3, -1),
    Sketcher.Constraint("Symmetric", 7, 3, 20, 3, -1),
    Sketcher.Constraint("Symmetric", 6, 3, 21, 3, -1),
    Sketcher.Constraint("Symmetric", 5, 3, 22, 3, -1),
    Sketcher.Constraint("Symmetric", 4, 3, 23, 3, -1),
    Sketcher.Constraint("Symmetric", 3, 3, 24, 3, -1),
    Sketcher.Constraint("Symmetric", 2, 3, 25, 3, -1),
    Sketcher.Constraint("Symmetric", 1, 3, 26, 3, -1),
    Sketcher.Constraint("Symmetric", 0, 3, 27, 3, -1),
    Sketcher.Constraint("Horizontal", 0, 3, 1, 3),
    Sketcher.Constraint("Horizontal", 1, 3, 2, 3),
    Sketcher.Constraint("Horizontal", 2, 3, 3, 3),
    Sketcher.Constraint("Horizontal", 3, 3, 4, 3),
    Sketcher.Constraint("Horizontal", 4, 3, 5, 3),
    Sketcher.Constraint("Horizontal", 5, 3, 6, 3),
    Sketcher.Constraint("Horizontal", 7, 3, 8, 3),
    Sketcher.Constraint("Horizontal", 8, 3, 9, 3),
    Sketcher.Constraint("Horizontal", 9, 3, 10, 3),
    Sketcher.Constraint("Horizontal", 10, 3, 11, 3),
    Sketcher.Constraint("Horizontal", 11, 3, 12, 3),
    Sketcher.Constraint("Horizontal", 12, 3, 13, 3),
    Sketcher.Constraint("Vertical", 0, 3, 7, 3),
    Sketcher.Constraint("Vertical", 1, 3, 8, 3),
    Sketcher.Constraint("Vertical", 2, 3, 9, 3),
    Sketcher.Constraint("Vertical", 3, 3, 10, 3),
    Sketcher.Constraint("Vertical", 4, 3, 11, 3),
    Sketcher.Constraint("Vertical", 5, 3, 12, 3),
    Sketcher.Constraint("Vertical", 6, 3, 13, 3),
    Sketcher.Constraint("Diameter", 0, Q("4 mm")),
    Sketcher.Constraint("DistanceX", 0, 3, 1, 3, Q("12.7 mm")),
    Sketcher.Constraint("DistanceX", 1, 3, 2, 3, Q("12.7 mm")),
    Sketcher.Constraint("DistanceX", 2, 3, 3, 3, Q("12.7 mm")),
    Sketcher.Constraint("DistanceX", 4, 3, 0, 3, Q("12.7 mm")),
    Sketcher.Constraint("DistanceX", 5, 3, 4, 3, Q("12.7 mm")),
    Sketcher.Constraint("DistanceX", 6, 3, 5, 3, Q("12.7 mm")),
    Sketcher.Constraint("DistanceY", 7, 3, 0, 3, Q("12.7 mm")),
    Sketcher.Constraint("DistanceX", -1, 1, 0, 3, Q("0.78 mm")),
    Sketcher.Constraint("DistanceY", 0, 3, -1, 1, Q("125.08 mm")),
])
sketch5.setExpression("Constraints[60]", "Params.sketch5_diameter")
pocket4 = body.newObject("PartDesign::Pocket", "Pocket003")
pocket4.Profile = sketch5
pocket4.Type = "ThroughAll"

doc.recompute()
